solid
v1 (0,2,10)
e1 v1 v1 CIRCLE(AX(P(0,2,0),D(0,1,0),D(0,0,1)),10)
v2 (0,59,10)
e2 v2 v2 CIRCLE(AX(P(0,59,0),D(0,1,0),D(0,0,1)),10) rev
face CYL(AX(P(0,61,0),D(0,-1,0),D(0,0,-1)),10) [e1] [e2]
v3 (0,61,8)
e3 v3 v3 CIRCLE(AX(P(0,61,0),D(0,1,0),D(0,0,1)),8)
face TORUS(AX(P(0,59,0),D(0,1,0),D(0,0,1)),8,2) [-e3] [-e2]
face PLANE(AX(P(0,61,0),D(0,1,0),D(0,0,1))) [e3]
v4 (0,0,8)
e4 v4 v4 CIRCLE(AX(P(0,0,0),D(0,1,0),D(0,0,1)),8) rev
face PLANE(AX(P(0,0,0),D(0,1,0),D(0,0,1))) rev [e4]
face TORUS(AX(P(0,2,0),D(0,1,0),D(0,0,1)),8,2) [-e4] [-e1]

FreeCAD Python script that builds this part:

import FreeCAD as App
import Part
import Sketcher


def edges_at(feature, points):
    """Names of the edges that pass closest to the given points."""
    edges = feature.Shape.Edges
    near = lambda p: min(range(len(edges)), key=lambda i: edges[i].distToShape(Part.Vertex(*p))[0])
    return sorted({f"Edge{near(p) + 1}" for p in points})

doc = App.newDocument("Part")
params = doc.addObject("Spreadsheet::Sheet", "Params")
for row, (alias, value) in enumerate([
    ("sketch1_diameter", "20 mm"),
    ("pad1_length", "61 mm"),
    ("fillet_radius", "2 mm"),
], start=1):
    params.set(f"A{row}", alias)
    params.set(f"B{row}", "=" + value)
    params.setAlias(f"B{row}", alias)

body = doc.addObject("PartDesign::Body", "Body")

sketch1 = doc.addObject("Sketcher::SketchObject", "Sketch")
body.addObject(sketch1)
sketch1.AttachmentSupport = (doc.XZ_Plane, [""])
sketch1.MapMode = "FlatFace"
sketch1.addGeometry(Part.Circle(App.Vector(0, 0, 0), App.Vector(0, 0, 1), 10), False)
sketch1.addConstraint([
    Sketcher.Constraint("Coincident", 0, 3, -1, 1),
    Sketcher.Constraint("Diameter", 0, 20.0),
])
sketch1.setExpression("Constraints[1]", "Params.sketch1_diameter")
pad1 = doc.addObject("PartDesign::Pad", "Pad")
body.addObject(pad1)
pad1.Profile = sketch1
pad1.setExpression("Length", "Params.pad1_length")
pad1.Reversed = True
doc.recompute()

fillet = doc.addObject("PartDesign::Fillet", "Fillet")
body.addObject(fillet)
fillet.Base = (pad1, edges_at(pad1, [(-10, 0, 0), (-10, 61, 0)]))
fillet.setExpression("Radius", "Params.fillet_radius")

doc.recompute()
